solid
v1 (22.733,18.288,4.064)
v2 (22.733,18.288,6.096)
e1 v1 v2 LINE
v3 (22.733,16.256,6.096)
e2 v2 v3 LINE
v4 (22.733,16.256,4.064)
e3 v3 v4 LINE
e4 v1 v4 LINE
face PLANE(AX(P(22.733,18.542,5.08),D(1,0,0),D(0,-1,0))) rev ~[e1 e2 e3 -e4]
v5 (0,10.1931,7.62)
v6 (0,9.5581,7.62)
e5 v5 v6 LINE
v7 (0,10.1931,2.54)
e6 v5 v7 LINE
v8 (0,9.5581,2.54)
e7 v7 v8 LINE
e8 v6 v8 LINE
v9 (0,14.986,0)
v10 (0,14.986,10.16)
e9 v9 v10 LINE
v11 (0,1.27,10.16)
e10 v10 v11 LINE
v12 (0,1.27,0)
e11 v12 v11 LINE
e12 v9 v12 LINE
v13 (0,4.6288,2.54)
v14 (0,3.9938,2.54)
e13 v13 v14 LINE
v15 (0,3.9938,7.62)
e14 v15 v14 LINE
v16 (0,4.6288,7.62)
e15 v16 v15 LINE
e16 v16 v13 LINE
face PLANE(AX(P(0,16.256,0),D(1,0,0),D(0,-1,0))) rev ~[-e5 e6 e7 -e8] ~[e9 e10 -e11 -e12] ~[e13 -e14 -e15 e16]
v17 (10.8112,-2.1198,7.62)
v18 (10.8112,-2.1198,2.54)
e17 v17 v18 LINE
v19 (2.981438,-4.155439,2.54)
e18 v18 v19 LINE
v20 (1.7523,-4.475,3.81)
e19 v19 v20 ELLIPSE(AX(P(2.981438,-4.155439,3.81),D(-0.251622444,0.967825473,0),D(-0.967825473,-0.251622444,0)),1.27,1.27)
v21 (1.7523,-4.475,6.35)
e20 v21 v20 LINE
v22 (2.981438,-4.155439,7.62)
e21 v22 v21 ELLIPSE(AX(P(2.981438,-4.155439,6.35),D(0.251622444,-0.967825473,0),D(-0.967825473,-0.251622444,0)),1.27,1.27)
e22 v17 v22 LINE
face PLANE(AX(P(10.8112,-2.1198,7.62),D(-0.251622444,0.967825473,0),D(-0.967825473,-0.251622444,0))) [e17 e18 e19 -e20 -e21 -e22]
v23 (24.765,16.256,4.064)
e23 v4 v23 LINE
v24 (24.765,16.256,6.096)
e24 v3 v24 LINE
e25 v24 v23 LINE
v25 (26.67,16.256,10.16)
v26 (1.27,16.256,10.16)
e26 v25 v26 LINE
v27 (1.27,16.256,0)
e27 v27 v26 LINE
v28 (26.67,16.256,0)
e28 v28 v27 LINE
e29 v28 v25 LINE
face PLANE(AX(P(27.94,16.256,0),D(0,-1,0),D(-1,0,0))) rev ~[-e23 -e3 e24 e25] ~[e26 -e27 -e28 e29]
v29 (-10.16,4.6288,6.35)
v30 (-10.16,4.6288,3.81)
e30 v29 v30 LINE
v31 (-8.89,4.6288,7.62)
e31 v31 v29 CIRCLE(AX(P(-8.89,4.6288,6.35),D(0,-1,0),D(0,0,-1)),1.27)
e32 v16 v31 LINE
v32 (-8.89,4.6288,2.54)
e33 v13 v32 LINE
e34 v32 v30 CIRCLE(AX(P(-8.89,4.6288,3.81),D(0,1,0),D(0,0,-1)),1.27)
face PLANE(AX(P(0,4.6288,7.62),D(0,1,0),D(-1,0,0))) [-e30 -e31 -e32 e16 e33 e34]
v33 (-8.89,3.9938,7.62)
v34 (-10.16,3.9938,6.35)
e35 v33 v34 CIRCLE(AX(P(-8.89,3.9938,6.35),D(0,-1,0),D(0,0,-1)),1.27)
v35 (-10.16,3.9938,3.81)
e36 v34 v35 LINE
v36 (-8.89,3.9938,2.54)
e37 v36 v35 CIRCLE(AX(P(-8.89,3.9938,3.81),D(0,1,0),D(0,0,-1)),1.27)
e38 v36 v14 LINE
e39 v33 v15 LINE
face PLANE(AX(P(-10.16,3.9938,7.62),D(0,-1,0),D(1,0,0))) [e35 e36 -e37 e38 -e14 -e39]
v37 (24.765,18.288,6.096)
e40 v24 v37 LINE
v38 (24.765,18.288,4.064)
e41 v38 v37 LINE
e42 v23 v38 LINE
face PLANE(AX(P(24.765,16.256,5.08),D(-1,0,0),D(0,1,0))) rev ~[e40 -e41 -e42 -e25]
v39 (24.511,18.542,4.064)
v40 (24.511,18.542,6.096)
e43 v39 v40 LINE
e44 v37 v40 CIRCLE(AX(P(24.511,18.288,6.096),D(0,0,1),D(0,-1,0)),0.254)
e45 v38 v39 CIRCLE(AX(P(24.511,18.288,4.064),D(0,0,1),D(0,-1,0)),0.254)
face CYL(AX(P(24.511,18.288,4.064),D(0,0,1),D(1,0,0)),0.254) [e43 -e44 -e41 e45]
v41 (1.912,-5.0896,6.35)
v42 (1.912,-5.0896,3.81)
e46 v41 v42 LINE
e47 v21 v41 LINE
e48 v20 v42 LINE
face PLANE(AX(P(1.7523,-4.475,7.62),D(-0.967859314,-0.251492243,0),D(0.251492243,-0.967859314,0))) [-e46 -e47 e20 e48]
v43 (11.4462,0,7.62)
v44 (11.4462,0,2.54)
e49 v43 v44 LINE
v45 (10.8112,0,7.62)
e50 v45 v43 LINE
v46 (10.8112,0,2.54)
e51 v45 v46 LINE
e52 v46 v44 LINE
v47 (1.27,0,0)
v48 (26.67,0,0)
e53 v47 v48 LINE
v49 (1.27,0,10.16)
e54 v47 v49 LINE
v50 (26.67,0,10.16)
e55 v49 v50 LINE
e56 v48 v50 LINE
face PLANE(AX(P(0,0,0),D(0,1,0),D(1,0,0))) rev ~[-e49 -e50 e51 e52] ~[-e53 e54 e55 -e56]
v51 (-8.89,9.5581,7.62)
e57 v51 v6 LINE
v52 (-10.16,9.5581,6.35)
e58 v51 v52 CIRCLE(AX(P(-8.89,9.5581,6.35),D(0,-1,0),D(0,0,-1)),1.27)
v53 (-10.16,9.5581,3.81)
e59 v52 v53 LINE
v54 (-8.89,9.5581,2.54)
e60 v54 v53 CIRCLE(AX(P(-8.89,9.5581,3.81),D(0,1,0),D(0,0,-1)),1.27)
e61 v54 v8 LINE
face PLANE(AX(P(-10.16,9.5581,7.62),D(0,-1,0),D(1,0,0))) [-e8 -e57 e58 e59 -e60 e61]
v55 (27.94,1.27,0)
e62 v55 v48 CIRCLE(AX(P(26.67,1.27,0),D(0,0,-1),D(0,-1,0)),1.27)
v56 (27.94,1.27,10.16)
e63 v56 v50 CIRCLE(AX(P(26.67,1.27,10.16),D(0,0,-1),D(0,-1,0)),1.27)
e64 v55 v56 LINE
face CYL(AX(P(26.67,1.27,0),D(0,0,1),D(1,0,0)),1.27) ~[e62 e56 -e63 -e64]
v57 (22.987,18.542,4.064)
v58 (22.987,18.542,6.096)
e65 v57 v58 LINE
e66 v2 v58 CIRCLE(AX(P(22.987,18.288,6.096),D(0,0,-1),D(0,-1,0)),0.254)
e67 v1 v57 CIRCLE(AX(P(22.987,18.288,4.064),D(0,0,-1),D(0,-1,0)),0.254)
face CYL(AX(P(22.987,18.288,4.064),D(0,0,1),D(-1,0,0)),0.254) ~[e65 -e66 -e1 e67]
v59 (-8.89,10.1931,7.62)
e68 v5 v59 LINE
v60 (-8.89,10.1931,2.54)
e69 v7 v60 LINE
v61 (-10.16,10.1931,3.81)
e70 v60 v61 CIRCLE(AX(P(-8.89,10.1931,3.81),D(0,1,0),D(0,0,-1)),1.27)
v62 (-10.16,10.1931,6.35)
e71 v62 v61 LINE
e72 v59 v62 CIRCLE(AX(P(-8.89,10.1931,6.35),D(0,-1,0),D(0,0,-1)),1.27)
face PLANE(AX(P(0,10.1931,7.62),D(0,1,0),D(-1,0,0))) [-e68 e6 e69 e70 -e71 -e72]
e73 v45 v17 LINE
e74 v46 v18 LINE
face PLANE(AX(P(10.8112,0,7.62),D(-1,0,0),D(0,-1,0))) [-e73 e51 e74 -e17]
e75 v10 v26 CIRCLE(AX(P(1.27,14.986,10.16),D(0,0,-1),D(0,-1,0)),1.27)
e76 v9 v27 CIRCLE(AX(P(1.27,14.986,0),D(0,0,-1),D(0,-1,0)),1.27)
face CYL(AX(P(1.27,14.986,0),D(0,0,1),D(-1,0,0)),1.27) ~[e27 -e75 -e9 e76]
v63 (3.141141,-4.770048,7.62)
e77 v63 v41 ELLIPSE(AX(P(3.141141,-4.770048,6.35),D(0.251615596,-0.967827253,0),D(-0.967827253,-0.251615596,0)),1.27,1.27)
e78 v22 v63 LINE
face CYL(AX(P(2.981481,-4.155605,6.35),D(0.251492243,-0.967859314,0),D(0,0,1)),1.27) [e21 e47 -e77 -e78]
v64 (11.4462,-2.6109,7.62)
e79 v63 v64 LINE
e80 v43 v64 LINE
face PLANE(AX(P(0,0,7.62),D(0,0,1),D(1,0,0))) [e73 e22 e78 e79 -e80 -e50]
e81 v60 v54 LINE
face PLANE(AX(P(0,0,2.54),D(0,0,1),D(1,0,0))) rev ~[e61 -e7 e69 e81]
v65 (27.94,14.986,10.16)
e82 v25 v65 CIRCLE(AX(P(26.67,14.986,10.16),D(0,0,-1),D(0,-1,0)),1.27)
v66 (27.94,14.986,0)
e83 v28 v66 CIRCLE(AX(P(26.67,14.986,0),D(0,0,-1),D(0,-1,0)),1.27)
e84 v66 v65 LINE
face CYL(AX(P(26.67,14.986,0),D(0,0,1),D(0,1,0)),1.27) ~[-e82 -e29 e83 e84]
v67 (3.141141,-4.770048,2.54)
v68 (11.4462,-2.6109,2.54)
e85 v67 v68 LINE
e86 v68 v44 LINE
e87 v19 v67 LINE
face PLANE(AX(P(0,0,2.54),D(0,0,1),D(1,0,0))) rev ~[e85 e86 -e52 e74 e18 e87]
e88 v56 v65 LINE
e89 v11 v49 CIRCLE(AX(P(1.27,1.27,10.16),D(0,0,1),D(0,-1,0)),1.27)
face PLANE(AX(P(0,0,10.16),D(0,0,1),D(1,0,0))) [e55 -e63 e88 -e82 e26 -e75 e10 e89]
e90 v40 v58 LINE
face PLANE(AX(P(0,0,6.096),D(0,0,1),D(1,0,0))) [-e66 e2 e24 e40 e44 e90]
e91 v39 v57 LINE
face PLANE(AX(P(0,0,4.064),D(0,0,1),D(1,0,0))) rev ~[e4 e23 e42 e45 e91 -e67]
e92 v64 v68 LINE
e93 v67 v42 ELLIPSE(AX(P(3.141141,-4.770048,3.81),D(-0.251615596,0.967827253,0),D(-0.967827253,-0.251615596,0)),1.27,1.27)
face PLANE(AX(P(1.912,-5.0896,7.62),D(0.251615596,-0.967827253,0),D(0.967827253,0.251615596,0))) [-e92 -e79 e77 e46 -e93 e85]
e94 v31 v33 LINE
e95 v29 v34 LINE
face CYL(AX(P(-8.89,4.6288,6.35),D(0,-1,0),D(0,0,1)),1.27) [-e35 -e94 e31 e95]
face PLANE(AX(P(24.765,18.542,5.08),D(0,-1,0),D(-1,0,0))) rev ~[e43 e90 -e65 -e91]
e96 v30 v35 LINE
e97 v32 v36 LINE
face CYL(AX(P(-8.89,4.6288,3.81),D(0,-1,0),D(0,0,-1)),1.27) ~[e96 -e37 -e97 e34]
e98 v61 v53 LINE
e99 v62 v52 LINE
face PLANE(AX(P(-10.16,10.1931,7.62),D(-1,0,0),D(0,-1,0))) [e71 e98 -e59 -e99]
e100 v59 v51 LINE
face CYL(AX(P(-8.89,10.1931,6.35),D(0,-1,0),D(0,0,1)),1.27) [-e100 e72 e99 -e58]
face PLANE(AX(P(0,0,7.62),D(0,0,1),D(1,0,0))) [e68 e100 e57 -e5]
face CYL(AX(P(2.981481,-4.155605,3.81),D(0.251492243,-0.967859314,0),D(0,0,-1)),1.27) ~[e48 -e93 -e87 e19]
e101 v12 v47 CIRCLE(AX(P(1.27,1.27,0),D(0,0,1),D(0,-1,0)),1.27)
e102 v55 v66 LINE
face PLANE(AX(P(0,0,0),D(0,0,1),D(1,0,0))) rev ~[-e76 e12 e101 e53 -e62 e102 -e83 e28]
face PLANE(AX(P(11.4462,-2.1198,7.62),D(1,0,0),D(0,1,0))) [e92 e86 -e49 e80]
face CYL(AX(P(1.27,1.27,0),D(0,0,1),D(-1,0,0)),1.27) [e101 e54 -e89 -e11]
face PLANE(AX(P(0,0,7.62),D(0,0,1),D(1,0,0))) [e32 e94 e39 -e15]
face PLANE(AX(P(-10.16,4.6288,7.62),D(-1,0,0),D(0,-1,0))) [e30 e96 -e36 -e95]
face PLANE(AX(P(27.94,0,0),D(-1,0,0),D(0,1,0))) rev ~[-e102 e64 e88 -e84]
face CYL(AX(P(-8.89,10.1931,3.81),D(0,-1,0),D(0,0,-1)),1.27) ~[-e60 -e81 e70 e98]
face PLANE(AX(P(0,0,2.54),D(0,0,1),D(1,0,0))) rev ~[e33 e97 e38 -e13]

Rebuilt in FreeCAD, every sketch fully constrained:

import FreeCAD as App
import Part
import Sketcher

V = App.Vector
Q = App.Units.Quantity


def edges_at(feature, points):
    """Names of the edges that pass closest to the given points."""
    edges = feature.Shape.Edges
    near = lambda p: min(range(len(edges)), key=lambda i: edges[i].distToShape(Part.Vertex(*p))[0])
    return sorted({f"Edge{near(p) + 1}" for p in points})


def add_polygon(sketch, points):
    """Adds a closed chain of lines whose ends are joined by coincident constraints."""
    first, n = sketch.GeometryCount, len(points)
    for a, b in zip(points, points[1:] + points[:1]):
        sketch.addGeometry(Part.LineSegment(App.Vector(*a, 0), App.Vector(*b, 0)), False)
    for i in range(n):
        sketch.addConstraint(Sketcher.Constraint("Coincident", first + i, 2, first + (i + 1) % n, 1))

doc = App.newDocument("Part")
params = doc.addObject("Spreadsheet::Sheet", "Params")
for row, (alias, value) in enumerate([
    ("sketch1_width", "1.1 in"),
    ("sketch1_height", "0.64 in"),
    ("pad1_length", "0.4 in"),
    ("fillet_radius", "0.05 in"),
    ("sketch2_width", "0.08 in"),
    ("sketch2_height", "0.09 in"),
    ("pad2_length", "0.08 in"),
    ("fillet2_radius", "0.01 in"),
    ("sketch3_width", "0.4 in"),
    ("sketch3_width2", "0.4 in"),
    ("sketch3_width3", "0.025 in"),
    ("sketch3_height", "0.025 in"),
    ("sketch3_height2", "0.025 in"),
    ("pad3_length", "0.2 in"),
    ("fillet3_radius", "0.05 in"),
], start=1):
    params.set(f"A{row}", alias)
    params.set(f"B{row}", "=" + value)
    params.setAlias(f"B{row}", alias)

body = doc.addObject("PartDesign::Body", "Body")

sketch1 = body.newObject("Sketcher::SketchObject", "Sketch")
sketch1.AttachmentSupport = (doc.getObject("XY_Plane"), [""])
sketch1.MapMode = "FlatFace"
add_polygon(sketch1, [(0, 16), (0, 0), (28, 0), (28, 16)])
sketch1.addConstraint(Sketcher.Constraint("Vertical", 0))
sketch1.addConstraint(Sketcher.Constraint("Horizontal", 1))
sketch1.addConstraint(Sketcher.Constraint("Vertical", 2))
sketch1.addConstraint(Sketcher.Constraint("Horizontal", 3))
sketch1.addConstraint(Sketcher.Constraint("Coincident", 0, 2, -1, 1))
sketch1.addConstraint(Sketcher.Constraint("DistanceX", 1, 1, 1, 2, Q("1.1 in")))
sketch1.addConstraint(Sketcher.Constraint("DistanceY", 0, 2, 0, 1, Q("0.64 in")))
sketch1.setExpression("Constraints[9]", "Params.sketch1_width")
sketch1.setExpression("Constraints[10]", "Params.sketch1_height")
pad1 = body.newObject("PartDesign::Pad", "Pad")
pad1.Profile = sketch1
pad1.setExpression("Length", "Params.pad1_length")
doc.recompute()

fillet = body.newObject("PartDesign::Fillet", "Fillet")
fillet.Base = (pad1, edges_at(pad1, [
    (0, 16.256, 5.08),
    (27.94, 16.256, 5.08),
    (27.94, 0, 5.08),
    (0, 0, 5.08),
]))
fillet.setExpression("Radius", "Params.fillet_radius")

sketch2 = body.newObject("Sketcher::SketchObject", "Sketch001")
sketch2.AttachmentSupport = (doc.getObject("XY_Plane"), [""])
sketch2.MapMode = "FlatFace"
sketch2.AttachmentOffset = App.Placement(V(0, 0, 0.2 * 25.4), App.Rotation())
add_polygon(sketch2, [(24.8, 16.3), (24.8, 18.5), (22.7, 18.5), (22.7, 16.3)])
sketch2.addConstraint(Sketcher.Constraint("Vertical", 0))
sketch2.addConstraint(Sketcher.Constraint("Horizontal", 1))
sketch2.addConstraint(Sketcher.Constraint("Vertical", 2))
sketch2.addConstraint(Sketcher.Constraint("Horizontal", 3))
sketch2.addConstraint(Sketcher.Constraint("DistanceX", 1, 2, 1, 1, Q("0.08 in")))
sketch2.addConstraint(Sketcher.Constraint("DistanceY", 0, 1, 0, 2, Q("0.09 in")))
sketch2.addConstraint(Sketcher.Constraint("DistanceY", -1, 1, 0, 2, Q("0.73 in")))
sketch2.addConstraint(Sketcher.Constraint("DistanceX", -1, 1, 0, 2, Q("0.975 in")))
sketch2.setExpression("Constraints[8]", "Params.sketch2_width")
sketch2.setExpression("Constraints[9]", "Params.sketch2_height")
pad2 = body.newObject("PartDesign::Pad", "Pad001")
pad2.Profile = sketch2
pad2.setExpression("Length", "Params.pad2_length")
pad2.Midplane = True
doc.recompute()

fillet2 = body.newObject("PartDesign::Fillet", "Fillet001")
fillet2.Base = (pad2, edges_at(pad2, [(24.765, 18.542, 5.08), (22.733, 18.542, 5.08)]))
fillet2.setExpression("Radius", "Params.fillet2_radius")

sketch3 = body.newObject("Sketcher::SketchObject", "Sketch002")
sketch3.AttachmentSupport = (doc.getObject("XY_Plane"), [""])
sketch3.MapMode = "FlatFace"
sketch3.AttachmentOffset = App.Placement(V(0, 0, 0.3 * 25.4), App.Rotation())
add_polygon(sketch3, [(-10.16, 3.9938), (0, 3.9938), (0, 4.6288), (-10.16, 4.6288)])
add_polygon(sketch3, [(11.4462, 0), (10.8112, 0), (10.8112, -2.1198), (1.7523, -4.475), (1.912, -5.0896), (11.4462, -2.6109)])
add_polygon(sketch3, [(-10.16, 9.5581), (0, 9.5581), (0, 10.1931), (-10.16, 10.1931)])
sketch3.addConstraint(Sketcher.Constraint("Horizontal", 0))
sketch3.addConstraint(Sketcher.Constraint("Vertical", 1))
sketch3.addConstraint(Sketcher.Constraint("Horizontal", 2))
sketch3.addConstraint(Sketcher.Constraint("Vertical", 3))
sketch3.addConstraint(Sketcher.Constraint("Horizontal", 4))
sketch3.addConstraint(Sketcher.Constraint("Vertical", 5))
sketch3.addConstraint(Sketcher.Constraint("Vertical", 9))
sketch3.addConstraint(Sketcher.Constraint("Horizontal", 10))
sketch3.addConstraint(Sketcher.Constraint("Vertical", 11))
sketch3.addConstraint(Sketcher.Constraint("Horizontal", 12))
sketch3.addConstraint(Sketcher.Constraint("Vertical", 13))
sketch3.addConstraint(Sketcher.Constraint("PointOnObject", 0, 2, -2))
sketch3.addConstraint(Sketcher.Constraint("PointOnObject", 4, 2, -1))
sketch3.addConstraint(Sketcher.Constraint("PointOnObject", 10, 2, -2))
sketch3.addConstraint(Sketcher.Constraint("DistanceX", 0, 1, 0, 2, Q("0.4 in")))
sketch3.addConstraint(Sketcher.Constraint("DistanceX", 10, 1, 10, 2, Q("0.4 in")))
sketch3.addConstraint(Sketcher.Constraint("DistanceX", 4, 2, 4, 1, Q("0.025 in")))
sketch3.addConstraint(Sketcher.Constraint("DistanceY", 1, 1, 1, 2, Q("0.025 in")))
sketch3.addConstraint(Sketcher.Constraint("DistanceY", 11, 1, 11, 2, Q("0.025 in")))
sketch3.addConstraint(Sketcher.Constraint("Distance", 7, Q("0.025 in")))
sketch3.addConstraint(Sketcher.Constraint("DistanceY", 9, 1, 9, 2, Q("0.1028 in")))
sketch3.addConstraint(Sketcher.Constraint("DistanceX", -1, 1, 6, 2, Q("0.069 in")))
sketch3.addConstraint(Sketcher.Constraint("Distance", 6, Q("0.3685 in")))
sketch3.addConstraint(Sketcher.Constraint("DistanceY", 5, 2, 5, 1, Q("2.1198 mm")))
sketch3.addConstraint(Sketcher.Constraint("DistanceY", -1, 1, 10, 2, Q("0.3763 in")))
sketch3.addConstraint(Sketcher.Constraint("DistanceY", 5, 2, 0, 2, Q("0.2407 in")))
sketch3.addConstraint(Sketcher.Constraint("DistanceY", 7, 2, 6, 2, Q("0.0242 in")))
sketch3.addConstraint(Sketcher.Constraint("DistanceY", 6, 2, 8, 2, Q("0.0734 in")))
sketch3.setExpression("Constraints[28]", "Params.sketch3_width")
sketch3.setExpression("Constraints[29]", "Params.sketch3_width2")
sketch3.setExpression("Constraints[30]", "Params.sketch3_width3")
sketch3.setExpression("Constraints[31]", "Params.sketch3_height")
sketch3.setExpression("Constraints[32]", "Params.sketch3_height2")
pad3 = body.newObject("PartDesign::Pad", "Pad002")
pad3.Profile = sketch3
pad3.setExpression("Length", "Params.pad3_length")
pad3.Reversed = True
doc.recompute()

fillet3 = body.newObject("PartDesign::Fillet", "Fillet002")
fillet3.Base = (pad3, edges_at(pad3, [
    (-10.16, 4.311, 7.62),
    (-10.16, 9.876, 7.62),
    (-10.16, 4.311, 2.54),
    (-10.16, 9.876, 2.54),
    (1.832, -4.782, 7.62),
    (1.832, -4.782, 2.54),
]))
fillet3.setExpression("Radius", "Params.fillet3_radius")

doc.recompute()
